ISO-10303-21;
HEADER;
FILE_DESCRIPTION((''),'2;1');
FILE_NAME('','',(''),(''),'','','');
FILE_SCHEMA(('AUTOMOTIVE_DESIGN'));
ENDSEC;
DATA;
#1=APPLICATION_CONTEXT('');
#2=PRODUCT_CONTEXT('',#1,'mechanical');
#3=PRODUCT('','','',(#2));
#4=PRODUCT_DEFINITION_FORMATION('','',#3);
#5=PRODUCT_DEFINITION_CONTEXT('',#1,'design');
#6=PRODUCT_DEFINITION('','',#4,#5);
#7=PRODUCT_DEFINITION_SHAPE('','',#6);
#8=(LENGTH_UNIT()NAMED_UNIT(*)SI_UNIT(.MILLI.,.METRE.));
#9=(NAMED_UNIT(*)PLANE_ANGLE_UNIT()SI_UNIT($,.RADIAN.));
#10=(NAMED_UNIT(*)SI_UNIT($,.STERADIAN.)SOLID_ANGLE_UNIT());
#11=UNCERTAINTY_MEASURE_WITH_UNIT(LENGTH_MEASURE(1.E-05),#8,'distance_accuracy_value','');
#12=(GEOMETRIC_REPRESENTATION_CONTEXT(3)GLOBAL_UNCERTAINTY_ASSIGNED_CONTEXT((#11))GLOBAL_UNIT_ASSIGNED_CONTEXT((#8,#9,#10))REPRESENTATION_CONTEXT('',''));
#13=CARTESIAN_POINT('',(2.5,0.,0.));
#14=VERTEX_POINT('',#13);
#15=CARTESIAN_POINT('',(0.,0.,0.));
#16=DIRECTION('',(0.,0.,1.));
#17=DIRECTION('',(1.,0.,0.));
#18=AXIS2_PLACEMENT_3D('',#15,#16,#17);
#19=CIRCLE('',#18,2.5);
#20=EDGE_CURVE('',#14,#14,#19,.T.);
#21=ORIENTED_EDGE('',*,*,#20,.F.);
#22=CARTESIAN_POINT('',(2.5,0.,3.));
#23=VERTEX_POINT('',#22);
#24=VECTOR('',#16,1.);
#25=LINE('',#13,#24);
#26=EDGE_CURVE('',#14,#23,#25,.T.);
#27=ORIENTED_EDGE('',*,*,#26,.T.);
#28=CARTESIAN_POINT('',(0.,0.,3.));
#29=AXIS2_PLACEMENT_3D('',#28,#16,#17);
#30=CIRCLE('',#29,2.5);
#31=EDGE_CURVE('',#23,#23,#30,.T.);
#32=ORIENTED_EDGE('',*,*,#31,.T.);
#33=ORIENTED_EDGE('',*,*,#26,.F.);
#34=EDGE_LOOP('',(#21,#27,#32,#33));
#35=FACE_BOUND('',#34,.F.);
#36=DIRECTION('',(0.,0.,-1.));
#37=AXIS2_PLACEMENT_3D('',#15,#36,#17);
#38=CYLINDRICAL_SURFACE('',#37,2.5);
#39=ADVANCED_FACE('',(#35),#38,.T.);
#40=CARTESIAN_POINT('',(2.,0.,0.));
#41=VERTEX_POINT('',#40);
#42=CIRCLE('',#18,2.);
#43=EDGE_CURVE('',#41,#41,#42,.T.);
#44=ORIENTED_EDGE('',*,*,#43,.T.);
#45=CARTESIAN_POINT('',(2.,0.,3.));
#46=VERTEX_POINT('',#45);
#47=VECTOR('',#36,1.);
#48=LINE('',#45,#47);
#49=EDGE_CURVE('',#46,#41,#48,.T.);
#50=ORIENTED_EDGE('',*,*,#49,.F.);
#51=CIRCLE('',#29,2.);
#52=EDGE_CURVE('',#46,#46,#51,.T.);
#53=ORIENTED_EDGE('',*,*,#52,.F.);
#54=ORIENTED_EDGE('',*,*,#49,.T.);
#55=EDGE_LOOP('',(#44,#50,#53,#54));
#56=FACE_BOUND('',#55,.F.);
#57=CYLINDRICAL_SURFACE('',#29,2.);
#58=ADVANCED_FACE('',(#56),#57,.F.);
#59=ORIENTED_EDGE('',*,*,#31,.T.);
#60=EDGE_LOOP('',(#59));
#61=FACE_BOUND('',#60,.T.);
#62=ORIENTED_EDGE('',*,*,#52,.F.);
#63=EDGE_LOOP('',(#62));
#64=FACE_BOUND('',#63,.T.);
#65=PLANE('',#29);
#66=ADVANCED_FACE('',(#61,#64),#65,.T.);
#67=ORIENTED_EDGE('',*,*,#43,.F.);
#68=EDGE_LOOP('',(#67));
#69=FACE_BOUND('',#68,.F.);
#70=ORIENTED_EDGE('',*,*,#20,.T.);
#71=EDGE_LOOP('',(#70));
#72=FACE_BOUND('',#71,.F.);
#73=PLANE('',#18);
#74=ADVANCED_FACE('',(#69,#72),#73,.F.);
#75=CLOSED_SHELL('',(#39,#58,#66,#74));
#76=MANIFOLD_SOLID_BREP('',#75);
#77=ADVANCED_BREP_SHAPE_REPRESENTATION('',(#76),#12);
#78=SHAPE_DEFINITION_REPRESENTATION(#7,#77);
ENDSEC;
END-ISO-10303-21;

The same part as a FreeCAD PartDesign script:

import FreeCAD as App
import Part
import Sketcher

V = App.Vector
Q = App.Units.Quantity

doc = App.newDocument("Part")
body = doc.addObject("PartDesign::Body", "Body")

sketch1 = body.newObject("Sketcher::SketchObject", "Sketch")
sketch1.AttachmentSupport = (doc.getObject("XY_Plane"), [""])
sketch1.MapMode = "FlatFace"
sketch1.addGeometry(Part.Circle(V(0, 0, 0), V(0, 0, 1), 2.5), False)
sketch1.addConstraint([
    Sketcher.Constraint("Coincident", 0, 3, -1, 1),
    Sketcher.Constraint("Diameter", 0, Q("5 mm")),
])
pad1 = body.newObject("PartDesign::Pad", "Pad")
pad1.Profile = sketch1
pad1.Length = 3

sketch2 = body.newObject("Sketcher::SketchObject", "Sketch001")
sketch2.AttachmentSupport = (doc.getObject("XY_Plane"), [""])
sketch2.MapMode = "FlatFace"
sketch2.AttachmentOffset = App.Placement(V(0, 0, 3), App.Rotation())
sketch2.addGeometry(Part.Circle(V(0, 0, 0), V(0, 0, 1), 2), False)
sketch2.addConstraint([
    Sketcher.Constraint("Coincident", 0, 3, -1, 1),
    Sketcher.Constraint("Diameter", 0, Q("4 mm")),
])
pocket1 = body.newObject("PartDesign::Pocket", "Pocket")
pocket1.Profile = sketch2
pocket1.Length = 3

doc.recompute()
